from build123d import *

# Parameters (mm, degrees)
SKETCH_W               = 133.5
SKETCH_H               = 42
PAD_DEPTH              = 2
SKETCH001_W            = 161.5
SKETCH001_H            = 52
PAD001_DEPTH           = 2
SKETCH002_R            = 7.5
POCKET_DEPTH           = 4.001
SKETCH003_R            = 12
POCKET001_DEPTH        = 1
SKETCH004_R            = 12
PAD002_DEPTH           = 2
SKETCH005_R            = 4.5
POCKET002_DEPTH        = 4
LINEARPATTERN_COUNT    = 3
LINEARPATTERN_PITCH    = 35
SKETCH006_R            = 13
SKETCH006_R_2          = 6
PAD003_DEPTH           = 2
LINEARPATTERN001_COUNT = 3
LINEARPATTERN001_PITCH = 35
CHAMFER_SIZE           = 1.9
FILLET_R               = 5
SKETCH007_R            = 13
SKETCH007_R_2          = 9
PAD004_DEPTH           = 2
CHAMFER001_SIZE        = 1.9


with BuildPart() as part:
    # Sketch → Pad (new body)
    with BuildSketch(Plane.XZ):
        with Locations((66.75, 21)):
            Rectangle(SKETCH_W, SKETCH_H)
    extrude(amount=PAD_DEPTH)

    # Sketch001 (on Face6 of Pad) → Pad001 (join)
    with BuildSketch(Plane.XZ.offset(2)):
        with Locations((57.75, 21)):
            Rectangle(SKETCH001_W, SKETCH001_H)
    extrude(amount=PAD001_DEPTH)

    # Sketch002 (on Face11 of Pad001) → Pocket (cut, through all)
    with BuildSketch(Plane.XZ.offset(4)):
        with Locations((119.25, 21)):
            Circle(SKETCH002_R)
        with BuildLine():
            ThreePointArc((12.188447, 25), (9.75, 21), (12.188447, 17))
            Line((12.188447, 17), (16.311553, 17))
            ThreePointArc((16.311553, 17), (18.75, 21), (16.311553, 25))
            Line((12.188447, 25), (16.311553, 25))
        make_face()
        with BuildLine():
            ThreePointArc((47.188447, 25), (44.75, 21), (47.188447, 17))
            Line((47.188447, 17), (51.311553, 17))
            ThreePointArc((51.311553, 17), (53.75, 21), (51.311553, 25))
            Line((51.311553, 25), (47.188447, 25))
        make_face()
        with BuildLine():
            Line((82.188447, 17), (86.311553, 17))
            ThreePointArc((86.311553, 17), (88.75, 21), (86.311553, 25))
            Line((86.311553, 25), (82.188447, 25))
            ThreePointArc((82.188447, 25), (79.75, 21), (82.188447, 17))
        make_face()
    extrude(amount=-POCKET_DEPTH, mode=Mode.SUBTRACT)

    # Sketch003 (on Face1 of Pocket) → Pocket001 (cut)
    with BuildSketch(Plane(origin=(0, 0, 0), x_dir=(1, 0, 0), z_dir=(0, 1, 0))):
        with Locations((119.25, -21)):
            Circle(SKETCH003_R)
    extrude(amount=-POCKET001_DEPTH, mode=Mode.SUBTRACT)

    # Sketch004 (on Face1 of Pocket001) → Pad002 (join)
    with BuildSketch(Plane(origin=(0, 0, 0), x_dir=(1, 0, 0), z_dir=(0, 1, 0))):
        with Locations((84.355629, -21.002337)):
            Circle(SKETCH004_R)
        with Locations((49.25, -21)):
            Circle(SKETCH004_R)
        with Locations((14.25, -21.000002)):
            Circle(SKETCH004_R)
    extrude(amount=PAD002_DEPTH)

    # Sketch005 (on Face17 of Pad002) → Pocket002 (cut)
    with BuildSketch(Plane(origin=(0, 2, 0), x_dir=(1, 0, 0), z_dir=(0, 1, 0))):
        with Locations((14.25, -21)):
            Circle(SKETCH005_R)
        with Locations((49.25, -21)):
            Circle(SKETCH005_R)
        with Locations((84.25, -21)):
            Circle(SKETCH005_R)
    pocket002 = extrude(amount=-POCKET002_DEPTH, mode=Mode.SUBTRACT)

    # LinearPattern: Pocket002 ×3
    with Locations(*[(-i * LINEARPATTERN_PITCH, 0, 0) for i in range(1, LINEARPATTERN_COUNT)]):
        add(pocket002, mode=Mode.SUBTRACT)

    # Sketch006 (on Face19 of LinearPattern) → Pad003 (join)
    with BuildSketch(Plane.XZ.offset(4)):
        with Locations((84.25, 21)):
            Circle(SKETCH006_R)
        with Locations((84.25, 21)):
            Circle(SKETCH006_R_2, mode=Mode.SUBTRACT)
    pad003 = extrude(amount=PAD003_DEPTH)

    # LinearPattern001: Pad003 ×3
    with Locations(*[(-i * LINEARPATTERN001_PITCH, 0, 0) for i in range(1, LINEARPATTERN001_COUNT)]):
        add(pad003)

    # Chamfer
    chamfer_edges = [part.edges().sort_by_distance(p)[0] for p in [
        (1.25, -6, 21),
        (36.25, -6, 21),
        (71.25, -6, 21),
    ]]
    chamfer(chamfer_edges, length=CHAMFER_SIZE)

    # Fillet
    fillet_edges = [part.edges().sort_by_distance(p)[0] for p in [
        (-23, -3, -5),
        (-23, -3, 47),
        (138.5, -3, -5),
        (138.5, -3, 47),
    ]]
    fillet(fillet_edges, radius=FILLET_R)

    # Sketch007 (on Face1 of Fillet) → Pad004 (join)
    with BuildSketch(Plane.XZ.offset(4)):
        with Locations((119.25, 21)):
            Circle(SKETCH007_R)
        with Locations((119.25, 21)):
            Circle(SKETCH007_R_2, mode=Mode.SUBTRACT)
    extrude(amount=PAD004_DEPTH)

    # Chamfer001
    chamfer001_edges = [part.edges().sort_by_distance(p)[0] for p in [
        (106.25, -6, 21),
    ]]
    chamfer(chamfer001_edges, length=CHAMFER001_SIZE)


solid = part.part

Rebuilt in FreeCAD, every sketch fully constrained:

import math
import FreeCAD as App
import Part
import Sketcher


def edges_at(feature, points):
    """Names of the edges that pass closest to the given points."""
    edges = feature.Shape.Edges
    near = lambda p: min(range(len(edges)), key=lambda i: edges[i].distToShape(Part.Vertex(*p))[0])
    return sorted({f"Edge{near(p) + 1}" for p in points})


def add_polygon(sketch, points):
    """Adds a closed chain of lines whose ends are joined by coincident constraints."""
    first, n = sketch.GeometryCount, len(points)
    for a, b in zip(points, points[1:] + points[:1]):
        sketch.addGeometry(Part.LineSegment(App.Vector(*a, 0), App.Vector(*b, 0)), False)
    for i in range(n):
        sketch.addConstraint(Sketcher.Constraint("Coincident", first + i, 2, first + (i + 1) % n, 1))

doc = App.newDocument("Part")
body = doc.addObject("PartDesign::Body", "Body")

# Sketch on XZ plane
sketch1 = body.newObject("Sketcher::SketchObject", "Sketch")
sketch1.AttachmentSupport = (doc.getObject("XZ_Plane"), [""])
sketch1.MapMode = "FlatFace"
add_polygon(sketch1, [(0, 42), (0, 0), (133.5, 0), (133.5, 42)])  # lines 0-3
sketch1.addConstraint([
    Sketcher.Constraint("Vertical", 0),
    Sketcher.Constraint("Horizontal", 1),
    Sketcher.Constraint("Vertical", 2),
    Sketcher.Constraint("Horizontal", 3),
    Sketcher.Constraint("Coincident", 0, 2, -1, 1),
    Sketcher.Constraint("DistanceY", 0, 2, 0, 1, 42.0),
    Sketcher.Constraint("DistanceX", 1, 1, 1, 2, 133.5),
])
pad1 = body.newObject("PartDesign::Pad", "Pad")
pad1.Profile = sketch1
pad1.Length = 2

# Sketch on XZ plane
sketch2 = body.newObject("Sketcher::SketchObject", "Sketch001")
sketch2.AttachmentSupport = (doc.getObject("XZ_Plane"), [""])
sketch2.MapMode = "FlatFace"
sketch2.AttachmentOffset = App.Placement(App.Vector(0, 0, 2), App.Rotation())
add_polygon(sketch2, [(-23, 47), (-23, -5), (138.5, -5), (138.5, 47)])  # lines 0-3
sketch2.addConstraint([
    Sketcher.Constraint("Vertical", 0),
    Sketcher.Constraint("Horizontal", 1),
    Sketcher.Constraint("Vertical", 2),
    Sketcher.Constraint("Horizontal", 3),
    Sketcher.Constraint("DistanceY", 0, 2, 0, 1, 52.0),
    Sketcher.Constraint("DistanceX", 1, 1, 1, 2, 161.5),
    Sketcher.Constraint("DistanceX", 0, 2, -1, 1, 23.0),
    Sketcher.Constraint("DistanceY", 0, 2, -1, 1, 5.0),
])
pad2 = body.newObject("PartDesign::Pad", "Pad001")
pad2.Profile = sketch2
pad2.Length = 2

# Sketch on XZ plane
sketch3 = body.newObject("Sketcher::SketchObject", "Sketch002")
sketch3.AttachmentSupport = (doc.getObject("XZ_Plane"), [""])
sketch3.MapMode = "FlatFace"
sketch3.AttachmentOffset = App.Placement(App.Vector(0, 0, 4), App.Rotation())
sketch3.addGeometry([
    Part.Circle(App.Vector(119.25, 21, 0), App.Vector(0, 0, 1), 7.5),  # 0
    Part.ArcOfCircle(Part.Circle(App.Vector(14.25, 21, 0), App.Vector(0, 0, 1), 4.5), math.radians(117.266048), math.radians(242.733952)),  # 1
    Part.LineSegment(App.Vector(12.188447, 17, 0), App.Vector(16.311553, 17, 0)),  # 2
    Part.ArcOfCircle(Part.Circle(App.Vector(14.25, 21, 0), App.Vector(0, 0, 1), 4.5), math.radians(-62.733952), math.radians(62.733952)),  # 3
    Part.LineSegment(App.Vector(16.311553, 25, 0), App.Vector(12.188447, 25, 0)),  # 4
    Part.ArcOfCircle(Part.Circle(App.Vector(49.25, 21, 0), App.Vector(0, 0, 1), 4.5), math.radians(117.266048), math.radians(242.733952)),  # 5
    Part.LineSegment(App.Vector(47.188447, 17, 0), App.Vector(51.311553, 17, 0)),  # 6
    Part.ArcOfCircle(Part.Circle(App.Vector(49.25, 21, 0), App.Vector(0, 0, 1), 4.5), math.radians(-62.733952), math.radians(62.733952)),  # 7
    Part.LineSegment(App.Vector(51.311553, 25, 0), App.Vector(47.188447, 25, 0)),  # 8
    Part.LineSegment(App.Vector(82.188447, 17, 0), App.Vector(86.311553, 17, 0)),  # 9
    Part.ArcOfCircle(Part.Circle(App.Vector(84.25, 21, 0), App.Vector(0, 0, 1), 4.5), math.radians(-62.733952), math.radians(62.733952)),  # 10
    Part.LineSegment(App.Vector(86.311553, 25, 0), App.Vector(82.188447, 25, 0)),  # 11
    Part.ArcOfCircle(Part.Circle(App.Vector(84.25, 21, 0), App.Vector(0, 0, 1), 4.5), math.radians(117.266048), math.radians(242.733952)),  # 12
], False)
sketch3.addConstraint([
    Sketcher.Constraint("Coincident", 1, 2, 2, 1),
    Sketcher.Constraint("Coincident", 2, 2, 3, 1),
    Sketcher.Constraint("Coincident", 3, 2, 4, 1),
    Sketcher.Constraint("Coincident", 4, 2, 1, 1),
    Sketcher.Constraint("Coincident", 5, 2, 6, 1),
    Sketcher.Constraint("Coincident", 6, 2, 7, 1),
    Sketcher.Constraint("Coincident", 7, 2, 8, 1),
    Sketcher.Constraint("Coincident", 8, 2, 5, 1),
    Sketcher.Constraint("Coincident", 9, 2, 10, 1),
    Sketcher.Constraint("Coincident", 10, 2, 11, 1),
    Sketcher.Constraint("Coincident", 11, 2, 12, 1),
    Sketcher.Constraint("Coincident", 12, 2, 9, 1),
    Sketcher.Constraint("Horizontal", 2),
    Sketcher.Constraint("Horizontal", 4),
    Sketcher.Constraint("Horizontal", 6),
    Sketcher.Constraint("Horizontal", 8),
    Sketcher.Constraint("Horizontal", 9),
    Sketcher.Constraint("Horizontal", 11),
    Sketcher.Constraint("Coincident", 3, 3, 1, 3),
    Sketcher.Constraint("Coincident", 7, 3, 5, 3),
    Sketcher.Constraint("Coincident", 12, 3, 10, 3),
    Sketcher.Constraint("Equal", 1, 3),
    Sketcher.Constraint("Equal", 3, 5),
    Sketcher.Constraint("Equal", 5, 7),
    Sketcher.Constraint("Equal", 7, 10),
    Sketcher.Constraint("Equal", 10, 12),
    Sketcher.Constraint("Horizontal", 0, 3, 1, 3),
    Sketcher.Constraint("Horizontal", 3, 3, 5, 3),
    Sketcher.Constraint("Horizontal", 7, 3, 10, 3),
    Sketcher.Constraint("Horizontal", 2, 2, 5, 2),
    Sketcher.Constraint("Horizontal", 4, 2, 7, 2),
    Sketcher.Constraint("Horizontal", 6, 2, 9, 2),
    Sketcher.Constraint("Horizontal", 8, 2, 10, 2),
    Sketcher.Constraint("Vertical", 2, 2, 3, 2),
    Sketcher.Constraint("Diameter", 0, 15.0),
    Sketcher.Constraint("Radius", 1, 4.5),
    Sketcher.Constraint("DistanceY", -1, 1, 0, 3, 21.0),
    Sketcher.Constraint("DistanceY", -1, 1, 1, 2, 17.0),
    Sketcher.Constraint("DistanceX", 1, 3, 0, 3, 105.0),
    Sketcher.Constraint("DistanceX", 1, 3, 5, 3, 35.0),
    Sketcher.Constraint("DistanceX", 5, 3, 10, 3, 35.0),
    Sketcher.Constraint("DistanceX", -1, 1, 0, 3, 119.25),
])
pocket1 = body.newObject("PartDesign::Pocket", "Pocket")
pocket1.Profile = sketch3
pocket1.Type = "ThroughAll"

# Sketch on XZ plane
sketch4 = body.newObject("Sketcher::SketchObject", "Sketch003")
sketch4.AttachmentSupport = (doc.getObject("XZ_Plane"), [""])
sketch4.MapMode = "FlatFace"
sketch4.addGeometry(Part.Circle(App.Vector(119.25, 21, 0), App.Vector(0, 0, 1), 12), False)
sketch4.addConstraint([
    Sketcher.Constraint("Diameter", 0, 24.0),
    Sketcher.Constraint("DistanceY", -1, 1, 0, 3, 21.0),
    Sketcher.Constraint("DistanceX", -1, 1, 0, 3, 119.25),
])
pocket2 = body.newObject("PartDesign::Pocket", "Pocket001")
pocket2.Profile = sketch4
pocket2.Length = 1
pocket2.Reversed = True

# Sketch on XZ plane
sketch5 = body.newObject("Sketcher::SketchObject", "Sketch004")
sketch5.AttachmentSupport = (doc.getObject("XZ_Plane"), [""])
sketch5.MapMode = "FlatFace"
sketch5.addGeometry([
    Part.Circle(App.Vector(84.355629, 21.002337, 0), App.Vector(0, 0, 1), 12),
    Part.Circle(App.Vector(49.25, 21, 0), App.Vector(0, 0, 1), 12),
    Part.Circle(App.Vector(14.25, 21.000002, 0), App.Vector(0, 0, 1), 12),
], False)
sketch5.addConstraint([
    Sketcher.Constraint("Equal", 0, 1),
    Sketcher.Constraint("Equal", 1, 2),
    Sketcher.Constraint("Horizontal", 1, 3, 2, 3),
    Sketcher.Constraint("Diameter", 0, 24.0),
    Sketcher.Constraint("DistanceY", -1, 1, 1, 3, 21.0),
    Sketcher.Constraint("DistanceX", 2, 3, 1, 3, 35.0),
    Sketcher.Constraint("DistanceX", -1, 1, 1, 3, 49.25),
    Sketcher.Constraint("DistanceX", -1, 1, 0, 3, 84.355629),
    Sketcher.Constraint("DistanceY", -1, 1, 0, 3, 21.002337),
])
pad3 = body.newObject("PartDesign::Pad", "Pad002")
pad3.Profile = sketch5
pad3.Length = 2
pad3.Reversed = True

# Sketch on XZ plane
sketch6 = body.newObject("Sketcher::SketchObject", "Sketch005")
sketch6.AttachmentSupport = (doc.getObject("XZ_Plane"), [""])
sketch6.MapMode = "FlatFace"
sketch6.AttachmentOffset = App.Placement(App.Vector(0, 0, -2), App.Rotation())
sketch6.addGeometry([
    Part.Circle(App.Vector(14.25, 21, 0), App.Vector(0, 0, 1), 4.5),
    Part.Circle(App.Vector(49.25, 21, 0), App.Vector(0, 0, 1), 4.5),
    Part.Circle(App.Vector(84.25, 21, 0), App.Vector(0, 0, 1), 4.5),
], False)
sketch6.addConstraint([
    Sketcher.Constraint("Equal", 0, 1),
    Sketcher.Constraint("Equal", 1, 2),
    Sketcher.Constraint("Horizontal", 0, 3, 1, 3),
    Sketcher.Constraint("Horizontal", 1, 3, 2, 3),
    Sketcher.Constraint("Diameter", 0, 9.0),
    Sketcher.Constraint("DistanceY", -1, 1, 0, 3, 21.0),
    Sketcher.Constraint("DistanceX", 0, 3, 1, 3, 35.0),
    Sketcher.Constraint("DistanceX", 1, 3, 2, 3, 35.0),
    Sketcher.Constraint("DistanceX", -1, 1, 0, 3, 14.25),
])
pocket3 = body.newObject("PartDesign::Pocket", "Pocket002")
pocket3.Profile = sketch6
pocket3.Length = 4
pocket3.Reversed = True
doc.recompute()

linearpattern = body.newObject("PartDesign::LinearPattern", "LinearPattern")
linearpattern.Originals = [pocket3]
linearpattern.Direction = (doc.getObject("X_Axis"), [""])
linearpattern.Mode = "offset"
linearpattern.Offset = 35
linearpattern.Occurrences = 3
linearpattern.Reversed = True
body.Tip = linearpattern

# Sketch on XZ plane
sketch7 = body.newObject("Sketcher::SketchObject", "Sketch006")
sketch7.AttachmentSupport = (doc.getObject("XZ_Plane"), [""])
sketch7.MapMode = "FlatFace"
sketch7.AttachmentOffset = App.Placement(App.Vector(0, 0, 4), App.Rotation())
sketch7.addGeometry([
    Part.Circle(App.Vector(84.25, 21, 0), App.Vector(0, 0, 1), 13),
    Part.Circle(App.Vector(84.25, 21, 0), App.Vector(0, 0, 1), 6),
], False)
sketch7.addConstraint([
    Sketcher.Constraint("Coincident", 1, 3, 0, 3),
    Sketcher.Constraint("Diameter", 0, 26.0),
    Sketcher.Constraint("Diameter", 1, 12.0),
    Sketcher.Constraint("DistanceY", -1, 1, 0, 3, 21.0),
    Sketcher.Constraint("DistanceX", -1, 1, 0, 3, 84.25),
])
pad4 = body.newObject("PartDesign::Pad", "Pad003")
pad4.Profile = sketch7
pad4.Length = 2
doc.recompute()

linearpattern2 = body.newObject("PartDesign::LinearPattern", "LinearPattern001")
linearpattern2.Originals = [pad4]
linearpattern2.Direction = (doc.getObject("X_Axis"), [""])
linearpattern2.Mode = "offset"
linearpattern2.Offset = 35
linearpattern2.Occurrences = 3
linearpattern2.Reversed = True
body.Tip = linearpattern2
doc.recompute()

chamfer = body.newObject("PartDesign::Chamfer", "Chamfer")
chamfer.Base = (linearpattern2, edges_at(linearpattern2, [(1.25, -6, 21), (36.25, -6, 21), (71.25, -6, 21)]))
chamfer.Size = 1.9
doc.recompute()

fillet = body.newObject("PartDesign::Fillet", "Fillet")
fillet.Base = (chamfer, edges_at(chamfer, [
    (-23, -3, -5),
    (-23, -3, 47),
    (138.5, -3, -5),
    (138.5, -3, 47),
]))
fillet.Radius = 5

# Sketch on XZ plane
sketch8 = body.newObject("Sketcher::SketchObject", "Sketch007")
sketch8.AttachmentSupport = (doc.getObject("XZ_Plane"), [""])
sketch8.MapMode = "FlatFace"
sketch8.AttachmentOffset = App.Placement(App.Vector(0, 0, 4), App.Rotation())
sketch8.addGeometry([
    Part.Circle(App.Vector(119.25, 21, 0), App.Vector(0, 0, 1), 13),
    Part.Circle(App.Vector(119.25, 21, 0), App.Vector(0, 0, 1), 9),
], False)
sketch8.addConstraint([
    Sketcher.Constraint("Coincident", 1, 3, 0, 3),
    Sketcher.Constraint("Diameter", 0, 26.0),
    Sketcher.Constraint("Diameter", 1, 18.0),
    Sketcher.Constraint("DistanceY", -1, 1, 0, 3, 21.0),
    Sketcher.Constraint("DistanceX", -1, 1, 0, 3, 119.25),
])
pad5 = body.newObject("PartDesign::Pad", "Pad004")
pad5.Profile = sketch8
pad5.Length = 2
doc.recompute()

chamfer2 = body.newObject("PartDesign::Chamfer", "Chamfer001")
chamfer2.Base = (pad5, edges_at(pad5, [(106.25, -6, 21)]))
chamfer2.Size = 1.9

doc.recompute()
